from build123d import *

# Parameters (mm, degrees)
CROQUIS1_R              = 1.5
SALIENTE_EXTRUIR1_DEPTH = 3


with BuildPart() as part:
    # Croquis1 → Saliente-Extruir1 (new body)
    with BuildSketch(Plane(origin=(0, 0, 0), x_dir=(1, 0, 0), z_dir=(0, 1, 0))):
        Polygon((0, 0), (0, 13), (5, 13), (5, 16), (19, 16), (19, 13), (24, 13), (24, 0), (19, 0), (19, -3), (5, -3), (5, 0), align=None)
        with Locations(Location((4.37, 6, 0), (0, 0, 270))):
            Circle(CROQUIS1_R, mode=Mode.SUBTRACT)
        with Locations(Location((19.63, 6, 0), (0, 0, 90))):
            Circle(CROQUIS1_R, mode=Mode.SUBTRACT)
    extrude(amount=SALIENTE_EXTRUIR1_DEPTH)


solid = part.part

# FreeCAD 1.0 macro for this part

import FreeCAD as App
import Part
import Sketcher

V = App.Vector
Q = App.Units.Quantity

doc = App.newDocument("Part")
body = doc.addObject("PartDesign::Body", "Body")

# Sketch on XZ plane
sketch1 = body.newObject("Sketcher::SketchObject", "Sketch")
sketch1.AttachmentSupport = (doc.getObject("XZ_Plane"), [""])
sketch1.MapMode = "FlatFace"
sketch1.addGeometry([
    Part.LineSegment(V(0, -13, 0), V(0, 0, 0)),  # 0
    Part.LineSegment(V(0, 0, 0), V(5, 0, 0)),  # 1
    Part.LineSegment(V(5, 0, 0), V(5, 3, 0)),  # 2
    Part.LineSegment(V(5, 3, 0), V(19, 3, 0)),  # 3
    Part.LineSegment(V(19, 3, 0), V(19, 0, 0)),  # 4
    Part.LineSegment(V(19, 0, 0), V(24, 0, 0)),  # 5
    Part.LineSegment(V(24, 0, 0), V(24, -13, 0)),  # 6
    Part.LineSegment(V(24, -13, 0), V(19, -13, 0)),  # 7
    Part.LineSegment(V(19, -13, 0), V(19, -16, 0)),  # 8
    Part.LineSegment(V(19, -16, 0), V(5, -16, 0)),  # 9
    Part.LineSegment(V(5, -16, 0), V(5, -13, 0)),  # 10
    Part.LineSegment(V(5, -13, 0), V(0, -13, 0)),  # 11
    Part.Circle(V(19.6, -6, 0), V(0, 0, 1), 1.5),  # 12
    Part.Circle(V(4.4, -6, 0), V(0, 0, 1), 1.5),  # 13
], False)
sketch1.addConstraint([
    Sketcher.Constraint("Coincident", 0, 2, 1, 1),
    Sketcher.Constraint("Coincident", 1, 2, 2, 1),
    Sketcher.Constraint("Coincident", 2, 2, 3, 1),
    Sketcher.Constraint("Coincident", 3, 2, 4, 1),
    Sketcher.Constraint("Coincident", 4, 2, 5, 1),
    Sketcher.Constraint("Coincident", 5, 2, 6, 1),
    Sketcher.Constraint("Coincident", 6, 2, 7, 1),
    Sketcher.Constraint("Coincident", 7, 2, 8, 1),
    Sketcher.Constraint("Coincident", 8, 2, 9, 1),
    Sketcher.Constraint("Coincident", 9, 2, 10, 1),
    Sketcher.Constraint("Coincident", 10, 2, 11, 1),
    Sketcher.Constraint("Coincident", 11, 2, 0, 1),
    Sketcher.Constraint("Vertical", 0),
    Sketcher.Constraint("Horizontal", 1),
    Sketcher.Constraint("Vertical", 2),
    Sketcher.Constraint("Horizontal", 3),
    Sketcher.Constraint("Vertical", 4),
    Sketcher.Constraint("Horizontal", 5),
    Sketcher.Constraint("Vertical", 6),
    Sketcher.Constraint("Horizontal", 7),
    Sketcher.Constraint("Vertical", 8),
    Sketcher.Constraint("Horizontal", 9),
    Sketcher.Constraint("Vertical", 10),
    Sketcher.Constraint("Horizontal", 11),
    Sketcher.Constraint("Coincident", 0, 2, -1, 1),
    Sketcher.Constraint("Equal", 12, 13),
    Sketcher.Constraint("PointOnObject", 4, 2, -1),
    Sketcher.Constraint("Horizontal", 12, 3, 13, 3),
    Sketcher.Constraint("Horizontal", 7, 2, 10, 2),
    Sketcher.Constraint("Vertical", 4, 2, 7, 2),
    Sketcher.Constraint("Vertical", 2, 2, 9, 2),
    Sketcher.Constraint("Equal", 1, 5),
    Sketcher.Constraint("Equal", 4, 8),
    Sketcher.Constraint("Diameter", 12, Q("3 mm")),
    Sketcher.Constraint("DistanceX", 1, 1, 1, 2, Q("5 mm")),
    Sketcher.Constraint("DistanceX", 3, 1, 3, 2, Q("14 mm")),
    Sketcher.Constraint("DistanceY", 0, 1, 0, 2, Q("13 mm")),
    Sketcher.Constraint("DistanceY", 2, 1, 2, 2, Q("3 mm")),
    Sketcher.Constraint("DistanceY", 12, 3, -1, 1, Q("6 mm")),
    Sketcher.Constraint("DistanceX", -1, 1, 12, 3, Q("19.63 mm")),
    Sketcher.Constraint("DistanceX", -1, 1, 13, 3, Q("4.37 mm")),
])
pad1 = body.newObject("PartDesign::Pad", "Pad")
pad1.Profile = sketch1
pad1.Length = 3
pad1.Reversed = True

doc.recompute()
